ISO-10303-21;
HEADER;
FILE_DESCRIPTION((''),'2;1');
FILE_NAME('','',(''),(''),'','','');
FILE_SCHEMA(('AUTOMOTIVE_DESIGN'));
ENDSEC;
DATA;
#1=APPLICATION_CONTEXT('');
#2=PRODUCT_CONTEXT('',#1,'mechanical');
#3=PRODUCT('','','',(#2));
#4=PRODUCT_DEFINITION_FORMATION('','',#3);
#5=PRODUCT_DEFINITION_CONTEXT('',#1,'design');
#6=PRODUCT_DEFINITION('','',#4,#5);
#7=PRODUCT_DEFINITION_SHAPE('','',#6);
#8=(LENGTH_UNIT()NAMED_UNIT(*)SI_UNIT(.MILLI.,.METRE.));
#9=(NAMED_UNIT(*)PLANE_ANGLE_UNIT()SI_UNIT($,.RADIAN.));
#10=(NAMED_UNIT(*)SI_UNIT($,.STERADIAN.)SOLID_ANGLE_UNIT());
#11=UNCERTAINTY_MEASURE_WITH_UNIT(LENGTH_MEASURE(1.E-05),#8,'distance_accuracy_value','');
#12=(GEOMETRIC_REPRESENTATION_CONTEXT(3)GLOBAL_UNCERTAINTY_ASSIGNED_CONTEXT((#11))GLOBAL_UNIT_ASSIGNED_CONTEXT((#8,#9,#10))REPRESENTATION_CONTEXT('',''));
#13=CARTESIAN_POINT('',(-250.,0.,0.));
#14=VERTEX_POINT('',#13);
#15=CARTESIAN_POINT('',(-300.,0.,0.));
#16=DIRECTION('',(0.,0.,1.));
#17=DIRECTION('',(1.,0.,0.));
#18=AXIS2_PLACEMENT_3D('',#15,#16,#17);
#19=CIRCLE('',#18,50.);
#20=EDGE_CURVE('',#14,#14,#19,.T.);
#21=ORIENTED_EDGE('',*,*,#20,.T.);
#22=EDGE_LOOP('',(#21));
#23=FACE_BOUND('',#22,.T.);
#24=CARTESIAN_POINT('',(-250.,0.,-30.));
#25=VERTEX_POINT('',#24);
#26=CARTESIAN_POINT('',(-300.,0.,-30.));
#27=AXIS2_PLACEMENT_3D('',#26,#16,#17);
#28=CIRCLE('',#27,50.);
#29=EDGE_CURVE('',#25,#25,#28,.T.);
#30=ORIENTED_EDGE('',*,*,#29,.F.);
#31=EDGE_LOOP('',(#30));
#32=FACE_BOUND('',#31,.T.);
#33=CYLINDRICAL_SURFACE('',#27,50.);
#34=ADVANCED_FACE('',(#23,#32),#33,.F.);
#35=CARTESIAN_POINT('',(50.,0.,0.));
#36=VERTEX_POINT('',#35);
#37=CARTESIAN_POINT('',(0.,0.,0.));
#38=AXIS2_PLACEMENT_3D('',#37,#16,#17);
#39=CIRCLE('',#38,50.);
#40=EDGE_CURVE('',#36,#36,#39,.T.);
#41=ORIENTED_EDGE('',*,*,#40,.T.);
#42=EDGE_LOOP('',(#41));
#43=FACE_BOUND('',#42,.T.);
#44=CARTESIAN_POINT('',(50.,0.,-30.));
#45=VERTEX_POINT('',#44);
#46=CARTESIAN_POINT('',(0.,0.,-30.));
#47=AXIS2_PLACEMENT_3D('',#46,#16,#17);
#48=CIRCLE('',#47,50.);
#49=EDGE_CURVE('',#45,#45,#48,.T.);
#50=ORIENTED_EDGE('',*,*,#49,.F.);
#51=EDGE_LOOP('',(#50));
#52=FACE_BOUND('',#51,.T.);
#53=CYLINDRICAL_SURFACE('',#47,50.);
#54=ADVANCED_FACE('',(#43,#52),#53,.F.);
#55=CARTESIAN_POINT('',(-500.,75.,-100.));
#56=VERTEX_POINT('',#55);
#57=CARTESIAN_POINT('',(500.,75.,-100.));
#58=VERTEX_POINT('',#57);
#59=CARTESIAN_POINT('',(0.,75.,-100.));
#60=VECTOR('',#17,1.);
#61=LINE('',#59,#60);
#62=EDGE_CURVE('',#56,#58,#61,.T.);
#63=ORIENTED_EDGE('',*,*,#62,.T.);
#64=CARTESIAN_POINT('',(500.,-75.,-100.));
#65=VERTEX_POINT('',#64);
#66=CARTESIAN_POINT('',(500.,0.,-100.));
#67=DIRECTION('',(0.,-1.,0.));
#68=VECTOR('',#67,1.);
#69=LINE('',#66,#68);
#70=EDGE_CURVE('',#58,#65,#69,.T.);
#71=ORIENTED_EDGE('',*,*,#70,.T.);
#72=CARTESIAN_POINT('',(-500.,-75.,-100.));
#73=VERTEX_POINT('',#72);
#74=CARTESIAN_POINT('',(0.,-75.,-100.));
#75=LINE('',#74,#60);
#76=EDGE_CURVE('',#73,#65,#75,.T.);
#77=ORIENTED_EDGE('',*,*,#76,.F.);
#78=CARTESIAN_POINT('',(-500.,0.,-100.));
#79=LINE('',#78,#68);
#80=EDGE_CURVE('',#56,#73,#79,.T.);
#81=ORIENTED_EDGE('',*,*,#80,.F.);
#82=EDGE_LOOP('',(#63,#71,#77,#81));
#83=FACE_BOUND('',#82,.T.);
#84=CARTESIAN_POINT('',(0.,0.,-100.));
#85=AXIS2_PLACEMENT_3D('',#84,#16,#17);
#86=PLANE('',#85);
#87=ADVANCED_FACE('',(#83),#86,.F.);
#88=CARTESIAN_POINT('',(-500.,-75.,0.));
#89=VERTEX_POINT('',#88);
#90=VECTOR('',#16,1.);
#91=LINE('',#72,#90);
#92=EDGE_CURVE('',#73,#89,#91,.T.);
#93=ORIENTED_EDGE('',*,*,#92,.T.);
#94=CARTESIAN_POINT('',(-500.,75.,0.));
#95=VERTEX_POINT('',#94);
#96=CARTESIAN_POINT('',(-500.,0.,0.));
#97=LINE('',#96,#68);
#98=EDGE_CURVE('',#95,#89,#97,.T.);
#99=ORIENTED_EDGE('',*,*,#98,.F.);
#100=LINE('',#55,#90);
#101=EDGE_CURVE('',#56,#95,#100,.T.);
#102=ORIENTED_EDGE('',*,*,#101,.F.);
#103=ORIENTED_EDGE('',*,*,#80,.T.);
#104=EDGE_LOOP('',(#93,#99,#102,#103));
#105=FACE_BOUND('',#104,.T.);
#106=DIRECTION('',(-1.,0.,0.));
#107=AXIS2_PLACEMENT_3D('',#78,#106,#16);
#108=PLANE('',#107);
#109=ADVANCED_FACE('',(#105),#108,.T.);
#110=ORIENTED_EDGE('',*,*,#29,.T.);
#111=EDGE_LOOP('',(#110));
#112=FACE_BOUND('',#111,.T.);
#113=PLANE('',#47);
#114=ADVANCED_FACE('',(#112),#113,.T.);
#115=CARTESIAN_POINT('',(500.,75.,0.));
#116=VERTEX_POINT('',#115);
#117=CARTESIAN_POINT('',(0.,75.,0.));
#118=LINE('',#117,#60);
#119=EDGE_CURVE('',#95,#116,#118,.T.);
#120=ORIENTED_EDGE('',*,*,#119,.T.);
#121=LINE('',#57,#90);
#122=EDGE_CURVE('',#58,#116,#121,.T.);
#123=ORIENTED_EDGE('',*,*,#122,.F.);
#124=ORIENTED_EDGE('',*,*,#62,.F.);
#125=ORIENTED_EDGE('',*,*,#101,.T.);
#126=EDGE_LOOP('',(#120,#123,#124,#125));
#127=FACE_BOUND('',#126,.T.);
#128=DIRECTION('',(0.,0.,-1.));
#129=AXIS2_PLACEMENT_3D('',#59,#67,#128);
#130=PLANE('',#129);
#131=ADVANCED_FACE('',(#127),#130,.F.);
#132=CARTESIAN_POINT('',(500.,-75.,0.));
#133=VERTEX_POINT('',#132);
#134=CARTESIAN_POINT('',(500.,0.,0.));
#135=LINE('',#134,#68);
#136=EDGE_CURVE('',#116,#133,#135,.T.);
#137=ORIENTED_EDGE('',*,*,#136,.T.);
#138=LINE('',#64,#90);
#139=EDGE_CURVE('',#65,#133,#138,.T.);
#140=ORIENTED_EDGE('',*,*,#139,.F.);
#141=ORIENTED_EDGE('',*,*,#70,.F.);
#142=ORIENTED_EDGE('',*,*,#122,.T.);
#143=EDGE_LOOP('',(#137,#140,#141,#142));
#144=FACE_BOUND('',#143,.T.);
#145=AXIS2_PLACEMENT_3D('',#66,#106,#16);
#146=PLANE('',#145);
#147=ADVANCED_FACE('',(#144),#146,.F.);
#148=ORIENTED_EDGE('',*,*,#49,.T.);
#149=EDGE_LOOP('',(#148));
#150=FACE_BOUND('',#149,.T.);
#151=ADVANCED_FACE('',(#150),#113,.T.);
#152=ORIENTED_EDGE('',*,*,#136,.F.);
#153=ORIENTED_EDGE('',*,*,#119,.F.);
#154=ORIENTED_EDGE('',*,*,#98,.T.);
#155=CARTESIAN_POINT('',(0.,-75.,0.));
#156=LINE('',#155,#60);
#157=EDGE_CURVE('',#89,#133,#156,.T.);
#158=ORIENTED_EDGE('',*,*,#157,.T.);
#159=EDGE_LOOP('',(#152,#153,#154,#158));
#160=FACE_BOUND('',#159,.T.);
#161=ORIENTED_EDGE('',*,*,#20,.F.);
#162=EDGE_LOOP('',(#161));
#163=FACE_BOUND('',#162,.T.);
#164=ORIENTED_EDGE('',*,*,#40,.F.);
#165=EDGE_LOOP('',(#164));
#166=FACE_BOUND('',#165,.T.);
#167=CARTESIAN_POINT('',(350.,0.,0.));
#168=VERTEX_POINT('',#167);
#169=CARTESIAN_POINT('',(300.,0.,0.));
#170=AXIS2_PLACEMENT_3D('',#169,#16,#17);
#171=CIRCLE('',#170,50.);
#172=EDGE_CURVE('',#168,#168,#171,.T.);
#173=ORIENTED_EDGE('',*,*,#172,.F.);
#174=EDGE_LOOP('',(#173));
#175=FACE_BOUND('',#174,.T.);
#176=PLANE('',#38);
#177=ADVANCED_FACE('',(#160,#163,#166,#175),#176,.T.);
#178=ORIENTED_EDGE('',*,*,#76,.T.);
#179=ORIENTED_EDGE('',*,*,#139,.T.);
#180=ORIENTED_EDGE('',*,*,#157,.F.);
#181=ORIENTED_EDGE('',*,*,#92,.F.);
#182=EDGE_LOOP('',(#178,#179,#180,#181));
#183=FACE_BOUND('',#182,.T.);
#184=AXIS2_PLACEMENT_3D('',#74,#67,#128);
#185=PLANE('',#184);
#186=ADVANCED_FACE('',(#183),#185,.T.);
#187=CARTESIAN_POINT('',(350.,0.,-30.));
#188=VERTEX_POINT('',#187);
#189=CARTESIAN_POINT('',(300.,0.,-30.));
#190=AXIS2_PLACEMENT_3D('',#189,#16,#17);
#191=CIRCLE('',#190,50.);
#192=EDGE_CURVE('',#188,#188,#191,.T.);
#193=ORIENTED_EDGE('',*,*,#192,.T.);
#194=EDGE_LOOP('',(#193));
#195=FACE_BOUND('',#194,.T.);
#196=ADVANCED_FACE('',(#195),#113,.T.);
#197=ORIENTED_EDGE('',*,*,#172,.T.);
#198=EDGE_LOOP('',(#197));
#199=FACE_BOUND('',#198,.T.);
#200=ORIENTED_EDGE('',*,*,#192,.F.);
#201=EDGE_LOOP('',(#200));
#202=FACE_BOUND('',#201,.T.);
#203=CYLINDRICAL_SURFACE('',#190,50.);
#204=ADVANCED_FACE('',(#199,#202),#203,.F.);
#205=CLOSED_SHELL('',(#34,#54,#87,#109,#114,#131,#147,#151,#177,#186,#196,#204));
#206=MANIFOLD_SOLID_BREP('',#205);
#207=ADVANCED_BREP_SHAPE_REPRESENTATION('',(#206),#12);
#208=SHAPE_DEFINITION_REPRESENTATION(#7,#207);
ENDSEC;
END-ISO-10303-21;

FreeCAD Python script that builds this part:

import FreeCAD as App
import Part
import Sketcher
from FreeCAD import Vector
Q = App.Units.Quantity

doc = App.newDocument("Part")
body = doc.addObject("PartDesign::Body", "Body")

sketch1 = doc.addObject("Sketcher::SketchObject", "Sketch")
body.addObject(sketch1)
sketch1.AttachmentSupport = (doc.XY_Plane, [""])
sketch1.MapMode = "FlatFace"
sketch1.addGeometry([
    Part.LineSegment(Vector(-500, 75, 0), Vector(-500, -75, 0)),
    Part.LineSegment(Vector(-500, -75, 0), Vector(500, -75, 0)),
    Part.LineSegment(Vector(500, -75, 0), Vector(500, 75, 0)),
    Part.LineSegment(Vector(500, 75, 0), Vector(-500, 75, 0)),
], False)
sketch1.addConstraint([
    Sketcher.Constraint("Coincident", 0, 2, 1, 1),
    Sketcher.Constraint("Coincident", 1, 2, 2, 1),
    Sketcher.Constraint("Coincident", 2, 2, 3, 1),
    Sketcher.Constraint("Coincident", 3, 2, 0, 1),
    Sketcher.Constraint("Vertical", 0),
    Sketcher.Constraint("Horizontal", 1),
    Sketcher.Constraint("Vertical", 2),
    Sketcher.Constraint("Horizontal", 3),
    Sketcher.Constraint("Symmetric", 0, 2, 2, 2, -1, 1),
    Sketcher.Constraint("DistanceX", 1, 1, 1, 2, Q("1000 mm")),
    Sketcher.Constraint("DistanceY", 0, 2, 0, 1, Q("150 mm")),
])
pad1 = doc.addObject("PartDesign::Pad", "Pad")
body.addObject(pad1)
pad1.Profile = sketch1
pad1.Length = 100
pad1.Reversed = True

sketch2 = doc.addObject("Sketcher::SketchObject", "Sketch001")
body.addObject(sketch2)
sketch2.AttachmentSupport = (doc.XY_Plane, [""])
sketch2.MapMode = "FlatFace"
sketch2.addGeometry([
    Part.Circle(Vector(-300, 0, 0), Vector(0, 0, 1), 50),
    Part.Circle(Vector(300, 0, 0), Vector(0, 0, 1), 50),
    Part.Circle(Vector(0, 0, 0), Vector(0, 0, 1), 50),
], False)
sketch2.addConstraint([
    Sketcher.Constraint("Coincident", 2, 3, -1, 1),
    Sketcher.Constraint("Equal", 0, 1),
    Sketcher.Constraint("Equal", 1, 2),
    Sketcher.Constraint("Symmetric", 0, 3, 1, 3, -1, 1),
    Sketcher.Constraint("PointOnObject", 0, 3, -1),
    Sketcher.Constraint("Diameter", 0, Q("100 mm")),
    Sketcher.Constraint("DistanceX", 0, 3, -1, 1, Q("300 mm")),
])
pocket1 = doc.addObject("PartDesign::Pocket", "Pocket")
body.addObject(pocket1)
pocket1.Profile = sketch2
pocket1.Length = 30

doc.recompute()
